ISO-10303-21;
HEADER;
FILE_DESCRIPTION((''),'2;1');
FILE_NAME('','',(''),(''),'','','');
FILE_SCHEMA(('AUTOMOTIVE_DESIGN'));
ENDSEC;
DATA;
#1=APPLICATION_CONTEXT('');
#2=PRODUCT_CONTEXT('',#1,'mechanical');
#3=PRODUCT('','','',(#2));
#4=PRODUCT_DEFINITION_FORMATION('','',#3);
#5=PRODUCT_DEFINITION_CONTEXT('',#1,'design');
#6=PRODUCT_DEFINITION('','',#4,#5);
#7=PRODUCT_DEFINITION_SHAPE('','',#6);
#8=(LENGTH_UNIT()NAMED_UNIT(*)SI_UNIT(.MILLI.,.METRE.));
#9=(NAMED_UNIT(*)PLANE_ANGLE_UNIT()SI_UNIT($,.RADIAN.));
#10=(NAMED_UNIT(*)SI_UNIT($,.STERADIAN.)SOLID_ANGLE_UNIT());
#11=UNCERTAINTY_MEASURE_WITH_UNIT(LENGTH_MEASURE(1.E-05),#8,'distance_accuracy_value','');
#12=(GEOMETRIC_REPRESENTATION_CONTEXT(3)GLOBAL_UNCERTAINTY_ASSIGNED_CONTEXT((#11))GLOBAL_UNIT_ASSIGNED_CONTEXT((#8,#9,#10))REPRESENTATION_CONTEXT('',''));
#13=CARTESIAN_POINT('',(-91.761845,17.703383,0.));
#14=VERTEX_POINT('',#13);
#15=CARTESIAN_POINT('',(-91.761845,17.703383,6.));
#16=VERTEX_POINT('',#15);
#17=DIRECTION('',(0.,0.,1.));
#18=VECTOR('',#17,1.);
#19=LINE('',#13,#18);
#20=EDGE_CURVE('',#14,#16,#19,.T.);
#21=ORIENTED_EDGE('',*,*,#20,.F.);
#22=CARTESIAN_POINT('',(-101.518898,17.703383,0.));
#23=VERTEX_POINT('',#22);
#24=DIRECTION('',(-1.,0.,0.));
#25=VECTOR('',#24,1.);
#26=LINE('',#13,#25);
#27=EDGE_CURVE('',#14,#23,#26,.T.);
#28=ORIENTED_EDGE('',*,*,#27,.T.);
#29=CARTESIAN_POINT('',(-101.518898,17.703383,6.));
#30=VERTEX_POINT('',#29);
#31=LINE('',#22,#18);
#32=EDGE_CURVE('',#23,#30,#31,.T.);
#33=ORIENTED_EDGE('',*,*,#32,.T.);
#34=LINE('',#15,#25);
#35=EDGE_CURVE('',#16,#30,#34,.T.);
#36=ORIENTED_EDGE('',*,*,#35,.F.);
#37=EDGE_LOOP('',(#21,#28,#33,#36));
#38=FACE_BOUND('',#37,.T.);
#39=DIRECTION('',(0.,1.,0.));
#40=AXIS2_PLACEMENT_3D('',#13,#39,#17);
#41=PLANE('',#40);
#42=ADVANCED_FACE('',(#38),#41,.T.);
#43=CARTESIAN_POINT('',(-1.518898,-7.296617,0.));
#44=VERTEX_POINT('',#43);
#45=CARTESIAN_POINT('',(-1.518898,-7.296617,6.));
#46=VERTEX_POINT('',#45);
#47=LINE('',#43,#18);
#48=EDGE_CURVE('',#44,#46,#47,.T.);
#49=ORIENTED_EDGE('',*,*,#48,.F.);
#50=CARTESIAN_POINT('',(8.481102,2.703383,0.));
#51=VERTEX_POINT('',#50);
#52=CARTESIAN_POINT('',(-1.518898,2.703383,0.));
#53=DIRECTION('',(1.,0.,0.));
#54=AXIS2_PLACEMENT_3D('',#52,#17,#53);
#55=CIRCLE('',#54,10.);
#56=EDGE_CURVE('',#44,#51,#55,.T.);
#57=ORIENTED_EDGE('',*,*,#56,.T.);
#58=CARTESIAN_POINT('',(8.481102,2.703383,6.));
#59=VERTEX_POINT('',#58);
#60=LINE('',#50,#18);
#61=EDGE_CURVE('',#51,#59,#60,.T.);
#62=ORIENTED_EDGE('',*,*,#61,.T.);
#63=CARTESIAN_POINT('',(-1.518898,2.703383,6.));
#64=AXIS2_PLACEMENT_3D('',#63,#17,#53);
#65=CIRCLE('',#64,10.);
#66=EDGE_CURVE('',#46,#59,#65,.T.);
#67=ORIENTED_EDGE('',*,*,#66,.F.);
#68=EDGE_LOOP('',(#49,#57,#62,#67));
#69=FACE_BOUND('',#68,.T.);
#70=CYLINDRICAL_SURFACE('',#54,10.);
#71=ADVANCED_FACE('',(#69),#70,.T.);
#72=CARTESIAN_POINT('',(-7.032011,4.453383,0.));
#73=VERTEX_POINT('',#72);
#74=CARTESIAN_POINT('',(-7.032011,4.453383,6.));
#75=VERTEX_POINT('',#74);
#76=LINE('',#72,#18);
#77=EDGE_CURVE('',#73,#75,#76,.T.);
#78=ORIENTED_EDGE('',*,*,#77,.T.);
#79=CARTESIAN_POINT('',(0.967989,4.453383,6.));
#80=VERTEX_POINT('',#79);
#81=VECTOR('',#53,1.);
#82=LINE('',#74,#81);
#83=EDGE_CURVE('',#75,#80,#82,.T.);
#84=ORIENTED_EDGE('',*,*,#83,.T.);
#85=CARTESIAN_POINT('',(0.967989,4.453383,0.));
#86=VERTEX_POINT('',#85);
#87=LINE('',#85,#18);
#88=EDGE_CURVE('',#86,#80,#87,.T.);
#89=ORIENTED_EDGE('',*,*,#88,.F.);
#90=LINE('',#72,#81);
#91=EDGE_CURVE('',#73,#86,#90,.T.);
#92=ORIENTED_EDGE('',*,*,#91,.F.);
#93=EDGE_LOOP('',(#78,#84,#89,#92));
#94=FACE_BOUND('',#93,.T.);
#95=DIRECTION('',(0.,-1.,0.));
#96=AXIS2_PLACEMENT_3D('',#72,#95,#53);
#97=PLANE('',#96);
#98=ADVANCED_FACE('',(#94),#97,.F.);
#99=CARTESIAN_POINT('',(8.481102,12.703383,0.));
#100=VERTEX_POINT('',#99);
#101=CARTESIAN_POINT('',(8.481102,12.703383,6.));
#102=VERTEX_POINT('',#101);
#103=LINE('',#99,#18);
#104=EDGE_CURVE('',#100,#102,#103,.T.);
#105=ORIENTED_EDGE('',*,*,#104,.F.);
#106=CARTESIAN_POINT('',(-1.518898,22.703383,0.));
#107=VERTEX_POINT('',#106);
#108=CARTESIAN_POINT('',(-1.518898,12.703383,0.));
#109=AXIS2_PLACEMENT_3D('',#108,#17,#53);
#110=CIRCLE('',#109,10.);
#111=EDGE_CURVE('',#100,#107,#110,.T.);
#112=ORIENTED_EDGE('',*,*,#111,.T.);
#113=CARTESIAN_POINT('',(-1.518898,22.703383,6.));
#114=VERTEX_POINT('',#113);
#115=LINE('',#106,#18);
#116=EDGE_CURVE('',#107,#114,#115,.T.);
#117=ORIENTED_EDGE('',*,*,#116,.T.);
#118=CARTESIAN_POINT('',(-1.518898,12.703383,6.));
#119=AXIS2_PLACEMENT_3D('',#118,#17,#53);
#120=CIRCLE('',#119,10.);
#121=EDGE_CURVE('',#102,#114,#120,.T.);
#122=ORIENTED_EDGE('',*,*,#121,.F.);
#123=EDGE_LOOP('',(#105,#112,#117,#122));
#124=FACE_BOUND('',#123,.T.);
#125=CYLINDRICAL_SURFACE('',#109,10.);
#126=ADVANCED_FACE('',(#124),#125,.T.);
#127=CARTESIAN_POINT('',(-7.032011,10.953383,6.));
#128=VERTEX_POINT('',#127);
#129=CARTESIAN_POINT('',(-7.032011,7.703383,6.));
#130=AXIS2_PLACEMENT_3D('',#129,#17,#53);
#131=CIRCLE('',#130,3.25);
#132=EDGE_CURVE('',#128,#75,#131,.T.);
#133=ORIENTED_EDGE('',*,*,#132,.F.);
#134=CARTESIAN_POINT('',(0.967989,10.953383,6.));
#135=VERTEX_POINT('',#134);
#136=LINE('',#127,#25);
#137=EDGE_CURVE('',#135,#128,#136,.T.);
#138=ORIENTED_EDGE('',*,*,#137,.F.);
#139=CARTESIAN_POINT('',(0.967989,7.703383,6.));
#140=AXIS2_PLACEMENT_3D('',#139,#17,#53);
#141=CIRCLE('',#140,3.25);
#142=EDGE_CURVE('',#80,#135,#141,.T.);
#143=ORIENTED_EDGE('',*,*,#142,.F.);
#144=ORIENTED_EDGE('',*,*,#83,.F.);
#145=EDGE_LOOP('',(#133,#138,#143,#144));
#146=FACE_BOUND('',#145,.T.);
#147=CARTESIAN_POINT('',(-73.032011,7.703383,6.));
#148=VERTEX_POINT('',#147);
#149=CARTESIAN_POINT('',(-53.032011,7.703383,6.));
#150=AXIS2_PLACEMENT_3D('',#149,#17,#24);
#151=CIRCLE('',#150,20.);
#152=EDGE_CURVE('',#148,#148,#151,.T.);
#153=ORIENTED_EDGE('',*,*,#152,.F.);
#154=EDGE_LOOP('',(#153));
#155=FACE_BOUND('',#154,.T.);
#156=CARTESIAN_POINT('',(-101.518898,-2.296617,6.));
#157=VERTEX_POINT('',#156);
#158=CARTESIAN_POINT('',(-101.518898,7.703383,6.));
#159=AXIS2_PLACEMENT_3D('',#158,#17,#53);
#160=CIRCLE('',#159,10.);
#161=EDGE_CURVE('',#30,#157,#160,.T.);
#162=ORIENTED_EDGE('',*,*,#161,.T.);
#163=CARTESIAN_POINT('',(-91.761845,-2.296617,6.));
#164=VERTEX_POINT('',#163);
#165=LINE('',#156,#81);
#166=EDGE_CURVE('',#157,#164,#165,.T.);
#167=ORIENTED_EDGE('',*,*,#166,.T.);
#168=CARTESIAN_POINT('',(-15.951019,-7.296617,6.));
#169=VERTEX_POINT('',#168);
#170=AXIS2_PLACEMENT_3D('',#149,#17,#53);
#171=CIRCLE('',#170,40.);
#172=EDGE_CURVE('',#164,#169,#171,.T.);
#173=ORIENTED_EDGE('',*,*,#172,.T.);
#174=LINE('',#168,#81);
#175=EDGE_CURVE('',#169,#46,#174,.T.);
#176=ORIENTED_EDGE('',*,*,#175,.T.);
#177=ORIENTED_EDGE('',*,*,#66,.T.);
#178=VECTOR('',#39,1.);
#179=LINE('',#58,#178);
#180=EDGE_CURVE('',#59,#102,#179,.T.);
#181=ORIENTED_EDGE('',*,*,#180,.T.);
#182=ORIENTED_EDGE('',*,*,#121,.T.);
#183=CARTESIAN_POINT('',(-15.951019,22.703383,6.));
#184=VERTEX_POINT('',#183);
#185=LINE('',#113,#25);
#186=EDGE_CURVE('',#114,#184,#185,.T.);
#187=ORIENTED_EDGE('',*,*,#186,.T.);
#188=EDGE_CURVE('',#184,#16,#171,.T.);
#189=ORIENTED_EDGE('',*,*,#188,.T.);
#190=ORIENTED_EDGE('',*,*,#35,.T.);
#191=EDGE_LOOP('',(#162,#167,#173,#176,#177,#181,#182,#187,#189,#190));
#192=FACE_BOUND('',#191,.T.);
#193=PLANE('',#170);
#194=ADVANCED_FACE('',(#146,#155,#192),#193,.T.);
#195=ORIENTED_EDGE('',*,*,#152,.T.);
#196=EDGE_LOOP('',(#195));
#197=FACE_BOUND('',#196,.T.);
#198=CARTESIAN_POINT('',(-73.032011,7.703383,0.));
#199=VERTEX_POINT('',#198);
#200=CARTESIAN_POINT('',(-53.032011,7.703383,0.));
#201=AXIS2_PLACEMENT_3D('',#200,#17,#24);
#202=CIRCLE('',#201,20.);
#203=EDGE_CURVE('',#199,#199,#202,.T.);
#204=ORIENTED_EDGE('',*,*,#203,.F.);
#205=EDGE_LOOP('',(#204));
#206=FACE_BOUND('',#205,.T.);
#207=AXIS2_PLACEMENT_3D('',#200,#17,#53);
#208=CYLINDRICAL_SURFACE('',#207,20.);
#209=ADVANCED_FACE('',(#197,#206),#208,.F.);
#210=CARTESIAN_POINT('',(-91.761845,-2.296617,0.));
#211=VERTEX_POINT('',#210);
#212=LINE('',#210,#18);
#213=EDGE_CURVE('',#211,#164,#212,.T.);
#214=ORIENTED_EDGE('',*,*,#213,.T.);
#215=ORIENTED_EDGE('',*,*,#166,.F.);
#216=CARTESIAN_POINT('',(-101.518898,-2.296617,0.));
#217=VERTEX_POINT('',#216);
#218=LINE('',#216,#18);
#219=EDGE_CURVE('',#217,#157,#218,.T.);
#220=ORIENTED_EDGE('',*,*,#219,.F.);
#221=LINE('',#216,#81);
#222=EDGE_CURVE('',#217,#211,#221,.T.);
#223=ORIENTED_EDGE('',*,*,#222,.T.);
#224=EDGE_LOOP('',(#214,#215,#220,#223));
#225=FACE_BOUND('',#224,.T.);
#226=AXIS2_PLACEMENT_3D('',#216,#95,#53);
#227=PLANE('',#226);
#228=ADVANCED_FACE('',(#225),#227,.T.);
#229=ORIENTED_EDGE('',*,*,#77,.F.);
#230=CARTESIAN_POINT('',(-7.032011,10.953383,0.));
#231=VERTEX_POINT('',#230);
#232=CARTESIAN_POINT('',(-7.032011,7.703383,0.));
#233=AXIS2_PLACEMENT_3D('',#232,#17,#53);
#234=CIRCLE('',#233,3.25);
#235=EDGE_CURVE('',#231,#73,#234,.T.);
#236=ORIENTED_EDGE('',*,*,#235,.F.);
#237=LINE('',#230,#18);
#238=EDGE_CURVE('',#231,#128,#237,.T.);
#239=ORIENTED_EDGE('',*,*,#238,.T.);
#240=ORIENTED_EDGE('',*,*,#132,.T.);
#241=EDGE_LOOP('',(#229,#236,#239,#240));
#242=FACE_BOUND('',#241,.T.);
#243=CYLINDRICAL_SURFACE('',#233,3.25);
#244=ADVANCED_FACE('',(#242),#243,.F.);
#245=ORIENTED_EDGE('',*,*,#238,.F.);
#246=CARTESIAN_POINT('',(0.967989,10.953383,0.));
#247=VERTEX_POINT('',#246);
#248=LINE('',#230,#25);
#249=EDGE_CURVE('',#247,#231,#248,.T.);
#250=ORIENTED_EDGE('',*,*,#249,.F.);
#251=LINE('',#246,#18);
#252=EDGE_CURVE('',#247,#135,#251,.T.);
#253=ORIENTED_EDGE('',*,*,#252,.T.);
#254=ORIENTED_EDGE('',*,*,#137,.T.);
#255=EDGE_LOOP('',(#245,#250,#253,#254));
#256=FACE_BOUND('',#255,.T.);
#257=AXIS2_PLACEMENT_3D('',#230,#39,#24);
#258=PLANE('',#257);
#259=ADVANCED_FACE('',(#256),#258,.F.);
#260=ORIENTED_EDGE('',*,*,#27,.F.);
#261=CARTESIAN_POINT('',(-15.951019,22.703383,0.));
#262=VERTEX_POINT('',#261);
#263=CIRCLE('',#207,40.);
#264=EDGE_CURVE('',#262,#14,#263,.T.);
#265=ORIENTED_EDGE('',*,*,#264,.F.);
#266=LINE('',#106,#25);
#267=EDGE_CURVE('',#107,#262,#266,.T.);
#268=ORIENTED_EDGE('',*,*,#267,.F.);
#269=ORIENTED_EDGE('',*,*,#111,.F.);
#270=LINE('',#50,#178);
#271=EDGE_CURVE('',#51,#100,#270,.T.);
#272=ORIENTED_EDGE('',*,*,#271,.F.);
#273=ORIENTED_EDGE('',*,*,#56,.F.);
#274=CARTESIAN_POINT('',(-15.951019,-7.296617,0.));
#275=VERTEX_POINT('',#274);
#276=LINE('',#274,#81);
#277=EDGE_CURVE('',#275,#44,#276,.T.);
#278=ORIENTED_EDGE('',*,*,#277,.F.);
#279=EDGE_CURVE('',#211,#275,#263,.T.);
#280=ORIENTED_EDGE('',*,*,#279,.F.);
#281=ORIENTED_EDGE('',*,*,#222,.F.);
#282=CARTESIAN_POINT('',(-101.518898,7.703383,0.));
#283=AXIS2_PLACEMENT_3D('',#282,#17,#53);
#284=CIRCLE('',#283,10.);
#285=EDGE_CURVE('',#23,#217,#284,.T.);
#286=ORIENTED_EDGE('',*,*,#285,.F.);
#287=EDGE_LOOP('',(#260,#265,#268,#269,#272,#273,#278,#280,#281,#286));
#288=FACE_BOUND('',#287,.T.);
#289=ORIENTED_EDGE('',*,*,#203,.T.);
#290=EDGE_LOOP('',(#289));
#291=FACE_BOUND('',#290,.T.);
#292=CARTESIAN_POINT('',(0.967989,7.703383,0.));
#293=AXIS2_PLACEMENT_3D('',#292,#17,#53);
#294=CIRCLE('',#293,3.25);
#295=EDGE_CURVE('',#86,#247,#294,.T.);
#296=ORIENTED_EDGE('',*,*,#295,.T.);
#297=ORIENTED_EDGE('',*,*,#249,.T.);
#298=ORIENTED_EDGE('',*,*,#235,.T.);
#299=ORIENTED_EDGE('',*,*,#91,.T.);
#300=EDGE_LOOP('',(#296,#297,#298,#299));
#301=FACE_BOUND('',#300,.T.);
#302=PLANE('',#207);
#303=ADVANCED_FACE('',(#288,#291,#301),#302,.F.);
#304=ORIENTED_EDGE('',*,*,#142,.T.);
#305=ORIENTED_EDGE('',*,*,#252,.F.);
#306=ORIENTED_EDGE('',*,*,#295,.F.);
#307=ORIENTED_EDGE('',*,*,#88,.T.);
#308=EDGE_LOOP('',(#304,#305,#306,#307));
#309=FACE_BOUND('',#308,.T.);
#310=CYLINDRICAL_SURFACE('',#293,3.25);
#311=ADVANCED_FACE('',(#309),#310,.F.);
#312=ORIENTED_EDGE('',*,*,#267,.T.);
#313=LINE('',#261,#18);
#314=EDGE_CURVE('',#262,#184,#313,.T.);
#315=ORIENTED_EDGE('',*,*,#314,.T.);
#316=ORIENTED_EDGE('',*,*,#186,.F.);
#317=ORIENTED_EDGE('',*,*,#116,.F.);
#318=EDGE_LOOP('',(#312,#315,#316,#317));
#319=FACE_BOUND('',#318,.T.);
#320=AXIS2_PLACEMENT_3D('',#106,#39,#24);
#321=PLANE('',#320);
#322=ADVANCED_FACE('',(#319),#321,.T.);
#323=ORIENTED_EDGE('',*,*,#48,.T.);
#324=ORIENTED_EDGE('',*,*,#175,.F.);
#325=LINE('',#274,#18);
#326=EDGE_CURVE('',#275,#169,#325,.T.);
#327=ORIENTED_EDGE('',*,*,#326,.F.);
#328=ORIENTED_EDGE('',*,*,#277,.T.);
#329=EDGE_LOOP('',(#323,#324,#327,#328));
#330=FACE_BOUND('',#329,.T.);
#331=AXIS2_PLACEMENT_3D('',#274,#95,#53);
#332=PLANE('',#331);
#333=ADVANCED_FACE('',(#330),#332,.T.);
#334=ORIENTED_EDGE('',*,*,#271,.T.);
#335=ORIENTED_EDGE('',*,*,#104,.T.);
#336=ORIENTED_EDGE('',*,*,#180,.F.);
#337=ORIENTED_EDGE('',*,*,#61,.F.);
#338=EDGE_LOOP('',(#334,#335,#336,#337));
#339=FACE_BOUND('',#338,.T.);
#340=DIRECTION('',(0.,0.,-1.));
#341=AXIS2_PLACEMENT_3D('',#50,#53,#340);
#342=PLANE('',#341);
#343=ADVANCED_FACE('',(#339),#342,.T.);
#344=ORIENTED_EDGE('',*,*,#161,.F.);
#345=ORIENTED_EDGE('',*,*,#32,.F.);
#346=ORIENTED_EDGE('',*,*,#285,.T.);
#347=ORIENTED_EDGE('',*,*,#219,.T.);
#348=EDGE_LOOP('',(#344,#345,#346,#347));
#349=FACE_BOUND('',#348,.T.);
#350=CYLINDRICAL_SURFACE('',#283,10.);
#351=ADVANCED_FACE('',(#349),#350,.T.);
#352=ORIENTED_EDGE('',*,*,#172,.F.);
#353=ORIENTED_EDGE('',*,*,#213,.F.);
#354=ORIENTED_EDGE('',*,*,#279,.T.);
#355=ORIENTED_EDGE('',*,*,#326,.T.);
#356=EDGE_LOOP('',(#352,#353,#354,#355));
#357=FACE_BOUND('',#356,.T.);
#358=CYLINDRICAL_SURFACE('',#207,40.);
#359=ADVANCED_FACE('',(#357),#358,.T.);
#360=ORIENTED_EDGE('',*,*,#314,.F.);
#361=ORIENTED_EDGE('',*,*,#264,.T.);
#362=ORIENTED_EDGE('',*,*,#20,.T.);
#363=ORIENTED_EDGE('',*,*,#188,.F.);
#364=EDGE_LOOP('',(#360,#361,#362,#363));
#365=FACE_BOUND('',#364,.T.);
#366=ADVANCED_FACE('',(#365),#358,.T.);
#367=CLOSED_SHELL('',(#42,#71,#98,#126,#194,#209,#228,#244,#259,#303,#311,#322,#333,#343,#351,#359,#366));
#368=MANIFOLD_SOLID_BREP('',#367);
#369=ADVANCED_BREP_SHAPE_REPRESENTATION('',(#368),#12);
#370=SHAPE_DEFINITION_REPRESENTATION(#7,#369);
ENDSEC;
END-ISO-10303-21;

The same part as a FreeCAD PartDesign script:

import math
import FreeCAD as App
import Part
import Sketcher
Q = App.Units.Quantity

doc = App.newDocument("Part")
body = doc.addObject("PartDesign::Body", "Body")

# Sketch on XY plane
sketch1 = body.newObject("Sketcher::SketchObject", "Sketch")
sketch1.AttachmentSupport = (doc.getObject("XY_Plane"), [""])
sketch1.MapMode = "FlatFace"
sketch1.AttachmentOffset = App.Placement(App.Vector(0, 0, 6), App.Rotation())
sketch1.addGeometry([
    Part.LineSegment(App.Vector(-91.8, 17.7, 0), App.Vector(-101.5, 17.7, 0)),  # 0
    Part.ArcOfCircle(Part.Circle(App.Vector(-101.5, 7.7, 0), App.Vector(0, 0, 1), 10), math.radians(90), math.radians(270)),  # 1
    Part.LineSegment(App.Vector(-101.5, -2.3, 0), App.Vector(-91.8, -2.3, 0)),  # 2
    Part.ArcOfCircle(Part.Circle(App.Vector(-53, 7.7, 0), App.Vector(0, 0, 1), 40), math.radians(-166), math.radians(-22)),  # 3
    Part.LineSegment(App.Vector(-16, -7.3, 0), App.Vector(-1.5, -7.3, 0)),  # 4
    Part.ArcOfCircle(Part.Circle(App.Vector(-1.5, 2.7, 0), App.Vector(0, 0, 1), 10), math.radians(-90), math.radians(0)),  # 5
    Part.LineSegment(App.Vector(8.5, 2.7, 0), App.Vector(8.5, 12.7, 0)),  # 6
    Part.ArcOfCircle(Part.Circle(App.Vector(-1.5, 12.7, 0), App.Vector(0, 0, 1), 10), math.radians(0), math.radians(90)),  # 7
    Part.LineSegment(App.Vector(-1.5, 22.7, 0), App.Vector(-16, 22.7, 0)),  # 8
    Part.ArcOfCircle(Part.Circle(App.Vector(-53, 7.7, 0), App.Vector(0, 0, 1), 40), math.radians(22), math.radians(166)),  # 9
    Part.Circle(App.Vector(-53, 7.7, 0), App.Vector(0, 0, 1), 20),  # 10
    Part.ArcOfCircle(Part.Circle(App.Vector(-7, 7.7, 0), App.Vector(0, 0, 1), 3.2), math.radians(90), math.radians(270)),  # 11
    Part.LineSegment(App.Vector(-7, 11, 0), App.Vector(1, 11, 0)),  # 12
    Part.ArcOfCircle(Part.Circle(App.Vector(1, 7.7, 0), App.Vector(0, 0, 1), 3.2), math.radians(-90), math.radians(90)),  # 13
    Part.LineSegment(App.Vector(1, 4.5, 0), App.Vector(-7, 4.5, 0)),  # 14
], False)
sketch1.addConstraint([
    Sketcher.Constraint("Tangent", 0, 2, 1, 1),
    Sketcher.Constraint("Tangent", 1, 2, 2, 1),
    Sketcher.Constraint("Coincident", 2, 2, 3, 1),
    Sketcher.Constraint("Coincident", 3, 2, 4, 1),
    Sketcher.Constraint("Tangent", 4, 2, 5, 1),
    Sketcher.Constraint("Tangent", 5, 2, 6, 1),
    Sketcher.Constraint("Tangent", 6, 2, 7, 1),
    Sketcher.Constraint("Tangent", 7, 2, 8, 1),
    Sketcher.Constraint("Coincident", 8, 2, 9, 1),
    Sketcher.Constraint("Coincident", 9, 2, 0, 1),
    Sketcher.Constraint("Tangent", 11, 1, 12, 1),
    Sketcher.Constraint("Tangent", 12, 2, 13, 2),
    Sketcher.Constraint("Tangent", 13, 1, 14, 1),
    Sketcher.Constraint("Tangent", 14, 2, 11, 2),
    Sketcher.Constraint("Horizontal", 0),
    Sketcher.Constraint("Horizontal", 2),
    Sketcher.Constraint("Horizontal", 4),
    Sketcher.Constraint("Vertical", 6),
    Sketcher.Constraint("Horizontal", 8),
    Sketcher.Constraint("Horizontal", 12),
    Sketcher.Constraint("Horizontal", 14),
    Sketcher.Constraint("Coincident", 9, 3, 3, 3),
    Sketcher.Constraint("Coincident", 10, 3, 3, 3),
    Sketcher.Constraint("Equal", 1, 5),
    Sketcher.Constraint("Equal", 5, 7),
    Sketcher.Constraint("Equal", 3, 9),
    Sketcher.Constraint("Horizontal", 1, 3, 3, 3),
    Sketcher.Constraint("Horizontal", 10, 3, 11, 3),
    Sketcher.Constraint("Vertical", 3, 2, 8, 2),
    Sketcher.Constraint("Diameter", 10, Q("40 mm")),
    Sketcher.Constraint("Radius", 1, Q("10 mm")),
    Sketcher.Constraint("Radius", 3, Q("40 mm")),
    Sketcher.Constraint("DistanceX", 12, 1, 12, 2, Q("8 mm")),
    Sketcher.Constraint("DistanceY", 6, 1, 6, 2, Q("10 mm")),
    Sketcher.Constraint("Radius", 11, Q("3.25 mm")),
    Sketcher.Constraint("DistanceX", 1, 3, 5, 3, Q("100 mm")),
    Sketcher.Constraint("DistanceX", 3, 3, 11, 3, Q("46 mm")),
    Sketcher.Constraint("DistanceX", 4, 1, 4, 2, Q("14.432121 mm")),
    Sketcher.Constraint("DistanceX", 1, 3, -1, 1, Q("101.518898 mm")),
    Sketcher.Constraint("DistanceY", -1, 1, 1, 3, Q("7.703383 mm")),
])
pad1 = body.newObject("PartDesign::Pad", "Pad")
pad1.Profile = sketch1
pad1.Length = 6
pad1.Reversed = True

doc.recompute()
